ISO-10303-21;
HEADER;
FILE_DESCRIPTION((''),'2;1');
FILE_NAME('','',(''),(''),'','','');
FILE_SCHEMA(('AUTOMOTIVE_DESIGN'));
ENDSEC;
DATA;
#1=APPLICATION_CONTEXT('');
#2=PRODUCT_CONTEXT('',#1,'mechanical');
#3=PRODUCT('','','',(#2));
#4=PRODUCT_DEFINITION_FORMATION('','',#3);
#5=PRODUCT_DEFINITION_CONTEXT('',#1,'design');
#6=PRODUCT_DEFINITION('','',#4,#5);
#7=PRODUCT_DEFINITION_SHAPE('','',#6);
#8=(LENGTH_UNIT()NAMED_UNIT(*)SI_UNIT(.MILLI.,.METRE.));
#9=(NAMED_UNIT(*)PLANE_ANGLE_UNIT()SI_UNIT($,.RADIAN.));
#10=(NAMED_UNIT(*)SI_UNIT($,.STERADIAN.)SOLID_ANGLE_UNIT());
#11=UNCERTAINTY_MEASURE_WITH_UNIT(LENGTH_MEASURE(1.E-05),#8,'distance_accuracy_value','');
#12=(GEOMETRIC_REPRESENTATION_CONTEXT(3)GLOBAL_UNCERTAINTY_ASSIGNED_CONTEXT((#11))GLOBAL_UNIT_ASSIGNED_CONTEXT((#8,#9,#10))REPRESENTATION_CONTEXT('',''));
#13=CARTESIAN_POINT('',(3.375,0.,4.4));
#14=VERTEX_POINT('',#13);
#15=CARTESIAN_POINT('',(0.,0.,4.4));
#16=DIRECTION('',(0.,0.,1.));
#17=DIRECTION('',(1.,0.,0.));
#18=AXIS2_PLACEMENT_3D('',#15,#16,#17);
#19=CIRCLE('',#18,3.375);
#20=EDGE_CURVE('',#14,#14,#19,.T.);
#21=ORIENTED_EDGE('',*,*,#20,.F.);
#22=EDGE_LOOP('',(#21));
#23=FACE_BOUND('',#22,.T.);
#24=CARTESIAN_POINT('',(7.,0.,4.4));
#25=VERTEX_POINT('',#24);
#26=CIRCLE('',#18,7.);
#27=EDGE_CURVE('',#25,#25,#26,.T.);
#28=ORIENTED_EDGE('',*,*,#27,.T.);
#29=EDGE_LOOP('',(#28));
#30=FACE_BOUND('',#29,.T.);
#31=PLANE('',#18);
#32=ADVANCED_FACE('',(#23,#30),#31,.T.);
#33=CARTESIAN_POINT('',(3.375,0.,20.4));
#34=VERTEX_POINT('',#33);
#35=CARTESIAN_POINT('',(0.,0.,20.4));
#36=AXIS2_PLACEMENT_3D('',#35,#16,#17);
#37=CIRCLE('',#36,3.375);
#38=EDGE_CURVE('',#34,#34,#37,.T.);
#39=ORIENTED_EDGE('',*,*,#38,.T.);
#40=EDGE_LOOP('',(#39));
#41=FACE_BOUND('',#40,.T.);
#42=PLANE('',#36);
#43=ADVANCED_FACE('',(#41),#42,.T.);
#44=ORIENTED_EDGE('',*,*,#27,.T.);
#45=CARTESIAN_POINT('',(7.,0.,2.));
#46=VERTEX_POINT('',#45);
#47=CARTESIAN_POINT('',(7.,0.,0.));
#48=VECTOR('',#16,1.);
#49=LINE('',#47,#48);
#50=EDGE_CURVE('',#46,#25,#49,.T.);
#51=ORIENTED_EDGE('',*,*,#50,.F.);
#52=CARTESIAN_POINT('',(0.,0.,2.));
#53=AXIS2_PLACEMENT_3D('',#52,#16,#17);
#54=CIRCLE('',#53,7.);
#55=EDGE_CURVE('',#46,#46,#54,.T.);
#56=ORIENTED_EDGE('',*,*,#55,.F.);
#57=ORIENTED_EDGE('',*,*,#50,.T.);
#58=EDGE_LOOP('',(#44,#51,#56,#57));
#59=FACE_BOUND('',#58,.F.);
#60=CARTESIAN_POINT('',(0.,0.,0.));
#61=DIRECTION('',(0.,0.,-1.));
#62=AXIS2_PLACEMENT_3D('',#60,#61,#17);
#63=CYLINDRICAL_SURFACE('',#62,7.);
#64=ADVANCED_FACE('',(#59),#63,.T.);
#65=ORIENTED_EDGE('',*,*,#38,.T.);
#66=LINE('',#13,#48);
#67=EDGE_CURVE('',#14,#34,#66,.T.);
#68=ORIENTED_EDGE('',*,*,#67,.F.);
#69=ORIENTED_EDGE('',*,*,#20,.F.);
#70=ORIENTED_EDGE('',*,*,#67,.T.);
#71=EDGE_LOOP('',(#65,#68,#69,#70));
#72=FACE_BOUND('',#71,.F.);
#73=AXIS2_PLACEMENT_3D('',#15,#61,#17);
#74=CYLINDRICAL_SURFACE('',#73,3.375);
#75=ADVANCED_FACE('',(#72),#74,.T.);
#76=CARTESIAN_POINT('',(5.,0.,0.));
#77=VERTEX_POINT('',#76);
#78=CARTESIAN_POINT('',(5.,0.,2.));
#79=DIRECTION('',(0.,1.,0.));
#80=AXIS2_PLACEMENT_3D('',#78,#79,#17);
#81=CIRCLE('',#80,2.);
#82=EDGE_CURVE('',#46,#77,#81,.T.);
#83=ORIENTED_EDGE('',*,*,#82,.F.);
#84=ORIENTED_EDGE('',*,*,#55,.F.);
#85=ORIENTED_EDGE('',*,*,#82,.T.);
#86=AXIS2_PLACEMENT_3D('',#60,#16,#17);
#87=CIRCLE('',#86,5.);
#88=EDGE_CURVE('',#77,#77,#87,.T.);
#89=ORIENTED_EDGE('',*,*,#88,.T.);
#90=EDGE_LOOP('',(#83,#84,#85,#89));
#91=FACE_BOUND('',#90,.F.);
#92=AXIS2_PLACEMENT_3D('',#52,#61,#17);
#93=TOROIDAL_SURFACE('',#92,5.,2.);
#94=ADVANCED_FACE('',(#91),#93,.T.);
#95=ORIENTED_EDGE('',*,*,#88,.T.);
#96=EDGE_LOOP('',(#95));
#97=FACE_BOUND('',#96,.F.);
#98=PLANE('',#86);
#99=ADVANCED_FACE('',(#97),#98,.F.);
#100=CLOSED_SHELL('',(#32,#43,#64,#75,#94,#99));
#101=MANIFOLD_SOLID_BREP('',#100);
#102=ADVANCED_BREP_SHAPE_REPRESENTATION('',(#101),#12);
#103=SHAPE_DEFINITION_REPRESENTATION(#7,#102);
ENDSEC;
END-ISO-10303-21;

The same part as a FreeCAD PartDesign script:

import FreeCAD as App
import Part
import Sketcher

V = App.Vector
Q = App.Units.Quantity


def edges_at(feature, points):
    """Names of the edges that pass closest to the given points."""
    edges = feature.Shape.Edges
    near = lambda p: min(range(len(edges)), key=lambda i: edges[i].distToShape(Part.Vertex(*p))[0])
    return sorted({f"Edge{near(p) + 1}" for p in points})

doc = App.newDocument("Part")
body = doc.addObject("PartDesign::Body", "Body")

# Sketch on XY plane
sketch1 = body.newObject("Sketcher::SketchObject", "Sketch")
sketch1.AttachmentSupport = (doc.getObject("XY_Plane"), [""])
sketch1.MapMode = "FlatFace"
sketch1.addGeometry(Part.Circle(V(0, 0, 0), V(0, 0, 1), 7), False)
sketch1.addConstraint(Sketcher.Constraint("Coincident", 0, 3, -1, 1))
sketch1.addConstraint(Sketcher.Constraint("Diameter", 0, Q("14 mm")))
pad1 = body.newObject("PartDesign::Pad", "Pad")
pad1.Profile = sketch1
pad1.Length = 4.4
doc.recompute()

fillet = body.newObject("PartDesign::Fillet", "Fillet")
fillet.Base = (pad1, edges_at(pad1, [(-7, 0, 0)]))
fillet.Radius = 2

# Sketch on XY plane
sketch2 = body.newObject("Sketcher::SketchObject", "Sketch001")
sketch2.AttachmentSupport = (doc.getObject("XY_Plane"), [""])
sketch2.MapMode = "FlatFace"
sketch2.AttachmentOffset = App.Placement(V(0, 0, 4.4), App.Rotation())
sketch2.addGeometry(Part.Circle(V(0, 0, 0), V(0, 0, 1), 3.4), False)
sketch2.addConstraint(Sketcher.Constraint("Coincident", 0, 3, -1, 1))
sketch2.addConstraint(Sketcher.Constraint("Diameter", 0, Q("6.75 mm")))
pad2 = body.newObject("PartDesign::Pad", "Pad001")
pad2.Profile = sketch2
pad2.Length = 16

doc.recompute()
